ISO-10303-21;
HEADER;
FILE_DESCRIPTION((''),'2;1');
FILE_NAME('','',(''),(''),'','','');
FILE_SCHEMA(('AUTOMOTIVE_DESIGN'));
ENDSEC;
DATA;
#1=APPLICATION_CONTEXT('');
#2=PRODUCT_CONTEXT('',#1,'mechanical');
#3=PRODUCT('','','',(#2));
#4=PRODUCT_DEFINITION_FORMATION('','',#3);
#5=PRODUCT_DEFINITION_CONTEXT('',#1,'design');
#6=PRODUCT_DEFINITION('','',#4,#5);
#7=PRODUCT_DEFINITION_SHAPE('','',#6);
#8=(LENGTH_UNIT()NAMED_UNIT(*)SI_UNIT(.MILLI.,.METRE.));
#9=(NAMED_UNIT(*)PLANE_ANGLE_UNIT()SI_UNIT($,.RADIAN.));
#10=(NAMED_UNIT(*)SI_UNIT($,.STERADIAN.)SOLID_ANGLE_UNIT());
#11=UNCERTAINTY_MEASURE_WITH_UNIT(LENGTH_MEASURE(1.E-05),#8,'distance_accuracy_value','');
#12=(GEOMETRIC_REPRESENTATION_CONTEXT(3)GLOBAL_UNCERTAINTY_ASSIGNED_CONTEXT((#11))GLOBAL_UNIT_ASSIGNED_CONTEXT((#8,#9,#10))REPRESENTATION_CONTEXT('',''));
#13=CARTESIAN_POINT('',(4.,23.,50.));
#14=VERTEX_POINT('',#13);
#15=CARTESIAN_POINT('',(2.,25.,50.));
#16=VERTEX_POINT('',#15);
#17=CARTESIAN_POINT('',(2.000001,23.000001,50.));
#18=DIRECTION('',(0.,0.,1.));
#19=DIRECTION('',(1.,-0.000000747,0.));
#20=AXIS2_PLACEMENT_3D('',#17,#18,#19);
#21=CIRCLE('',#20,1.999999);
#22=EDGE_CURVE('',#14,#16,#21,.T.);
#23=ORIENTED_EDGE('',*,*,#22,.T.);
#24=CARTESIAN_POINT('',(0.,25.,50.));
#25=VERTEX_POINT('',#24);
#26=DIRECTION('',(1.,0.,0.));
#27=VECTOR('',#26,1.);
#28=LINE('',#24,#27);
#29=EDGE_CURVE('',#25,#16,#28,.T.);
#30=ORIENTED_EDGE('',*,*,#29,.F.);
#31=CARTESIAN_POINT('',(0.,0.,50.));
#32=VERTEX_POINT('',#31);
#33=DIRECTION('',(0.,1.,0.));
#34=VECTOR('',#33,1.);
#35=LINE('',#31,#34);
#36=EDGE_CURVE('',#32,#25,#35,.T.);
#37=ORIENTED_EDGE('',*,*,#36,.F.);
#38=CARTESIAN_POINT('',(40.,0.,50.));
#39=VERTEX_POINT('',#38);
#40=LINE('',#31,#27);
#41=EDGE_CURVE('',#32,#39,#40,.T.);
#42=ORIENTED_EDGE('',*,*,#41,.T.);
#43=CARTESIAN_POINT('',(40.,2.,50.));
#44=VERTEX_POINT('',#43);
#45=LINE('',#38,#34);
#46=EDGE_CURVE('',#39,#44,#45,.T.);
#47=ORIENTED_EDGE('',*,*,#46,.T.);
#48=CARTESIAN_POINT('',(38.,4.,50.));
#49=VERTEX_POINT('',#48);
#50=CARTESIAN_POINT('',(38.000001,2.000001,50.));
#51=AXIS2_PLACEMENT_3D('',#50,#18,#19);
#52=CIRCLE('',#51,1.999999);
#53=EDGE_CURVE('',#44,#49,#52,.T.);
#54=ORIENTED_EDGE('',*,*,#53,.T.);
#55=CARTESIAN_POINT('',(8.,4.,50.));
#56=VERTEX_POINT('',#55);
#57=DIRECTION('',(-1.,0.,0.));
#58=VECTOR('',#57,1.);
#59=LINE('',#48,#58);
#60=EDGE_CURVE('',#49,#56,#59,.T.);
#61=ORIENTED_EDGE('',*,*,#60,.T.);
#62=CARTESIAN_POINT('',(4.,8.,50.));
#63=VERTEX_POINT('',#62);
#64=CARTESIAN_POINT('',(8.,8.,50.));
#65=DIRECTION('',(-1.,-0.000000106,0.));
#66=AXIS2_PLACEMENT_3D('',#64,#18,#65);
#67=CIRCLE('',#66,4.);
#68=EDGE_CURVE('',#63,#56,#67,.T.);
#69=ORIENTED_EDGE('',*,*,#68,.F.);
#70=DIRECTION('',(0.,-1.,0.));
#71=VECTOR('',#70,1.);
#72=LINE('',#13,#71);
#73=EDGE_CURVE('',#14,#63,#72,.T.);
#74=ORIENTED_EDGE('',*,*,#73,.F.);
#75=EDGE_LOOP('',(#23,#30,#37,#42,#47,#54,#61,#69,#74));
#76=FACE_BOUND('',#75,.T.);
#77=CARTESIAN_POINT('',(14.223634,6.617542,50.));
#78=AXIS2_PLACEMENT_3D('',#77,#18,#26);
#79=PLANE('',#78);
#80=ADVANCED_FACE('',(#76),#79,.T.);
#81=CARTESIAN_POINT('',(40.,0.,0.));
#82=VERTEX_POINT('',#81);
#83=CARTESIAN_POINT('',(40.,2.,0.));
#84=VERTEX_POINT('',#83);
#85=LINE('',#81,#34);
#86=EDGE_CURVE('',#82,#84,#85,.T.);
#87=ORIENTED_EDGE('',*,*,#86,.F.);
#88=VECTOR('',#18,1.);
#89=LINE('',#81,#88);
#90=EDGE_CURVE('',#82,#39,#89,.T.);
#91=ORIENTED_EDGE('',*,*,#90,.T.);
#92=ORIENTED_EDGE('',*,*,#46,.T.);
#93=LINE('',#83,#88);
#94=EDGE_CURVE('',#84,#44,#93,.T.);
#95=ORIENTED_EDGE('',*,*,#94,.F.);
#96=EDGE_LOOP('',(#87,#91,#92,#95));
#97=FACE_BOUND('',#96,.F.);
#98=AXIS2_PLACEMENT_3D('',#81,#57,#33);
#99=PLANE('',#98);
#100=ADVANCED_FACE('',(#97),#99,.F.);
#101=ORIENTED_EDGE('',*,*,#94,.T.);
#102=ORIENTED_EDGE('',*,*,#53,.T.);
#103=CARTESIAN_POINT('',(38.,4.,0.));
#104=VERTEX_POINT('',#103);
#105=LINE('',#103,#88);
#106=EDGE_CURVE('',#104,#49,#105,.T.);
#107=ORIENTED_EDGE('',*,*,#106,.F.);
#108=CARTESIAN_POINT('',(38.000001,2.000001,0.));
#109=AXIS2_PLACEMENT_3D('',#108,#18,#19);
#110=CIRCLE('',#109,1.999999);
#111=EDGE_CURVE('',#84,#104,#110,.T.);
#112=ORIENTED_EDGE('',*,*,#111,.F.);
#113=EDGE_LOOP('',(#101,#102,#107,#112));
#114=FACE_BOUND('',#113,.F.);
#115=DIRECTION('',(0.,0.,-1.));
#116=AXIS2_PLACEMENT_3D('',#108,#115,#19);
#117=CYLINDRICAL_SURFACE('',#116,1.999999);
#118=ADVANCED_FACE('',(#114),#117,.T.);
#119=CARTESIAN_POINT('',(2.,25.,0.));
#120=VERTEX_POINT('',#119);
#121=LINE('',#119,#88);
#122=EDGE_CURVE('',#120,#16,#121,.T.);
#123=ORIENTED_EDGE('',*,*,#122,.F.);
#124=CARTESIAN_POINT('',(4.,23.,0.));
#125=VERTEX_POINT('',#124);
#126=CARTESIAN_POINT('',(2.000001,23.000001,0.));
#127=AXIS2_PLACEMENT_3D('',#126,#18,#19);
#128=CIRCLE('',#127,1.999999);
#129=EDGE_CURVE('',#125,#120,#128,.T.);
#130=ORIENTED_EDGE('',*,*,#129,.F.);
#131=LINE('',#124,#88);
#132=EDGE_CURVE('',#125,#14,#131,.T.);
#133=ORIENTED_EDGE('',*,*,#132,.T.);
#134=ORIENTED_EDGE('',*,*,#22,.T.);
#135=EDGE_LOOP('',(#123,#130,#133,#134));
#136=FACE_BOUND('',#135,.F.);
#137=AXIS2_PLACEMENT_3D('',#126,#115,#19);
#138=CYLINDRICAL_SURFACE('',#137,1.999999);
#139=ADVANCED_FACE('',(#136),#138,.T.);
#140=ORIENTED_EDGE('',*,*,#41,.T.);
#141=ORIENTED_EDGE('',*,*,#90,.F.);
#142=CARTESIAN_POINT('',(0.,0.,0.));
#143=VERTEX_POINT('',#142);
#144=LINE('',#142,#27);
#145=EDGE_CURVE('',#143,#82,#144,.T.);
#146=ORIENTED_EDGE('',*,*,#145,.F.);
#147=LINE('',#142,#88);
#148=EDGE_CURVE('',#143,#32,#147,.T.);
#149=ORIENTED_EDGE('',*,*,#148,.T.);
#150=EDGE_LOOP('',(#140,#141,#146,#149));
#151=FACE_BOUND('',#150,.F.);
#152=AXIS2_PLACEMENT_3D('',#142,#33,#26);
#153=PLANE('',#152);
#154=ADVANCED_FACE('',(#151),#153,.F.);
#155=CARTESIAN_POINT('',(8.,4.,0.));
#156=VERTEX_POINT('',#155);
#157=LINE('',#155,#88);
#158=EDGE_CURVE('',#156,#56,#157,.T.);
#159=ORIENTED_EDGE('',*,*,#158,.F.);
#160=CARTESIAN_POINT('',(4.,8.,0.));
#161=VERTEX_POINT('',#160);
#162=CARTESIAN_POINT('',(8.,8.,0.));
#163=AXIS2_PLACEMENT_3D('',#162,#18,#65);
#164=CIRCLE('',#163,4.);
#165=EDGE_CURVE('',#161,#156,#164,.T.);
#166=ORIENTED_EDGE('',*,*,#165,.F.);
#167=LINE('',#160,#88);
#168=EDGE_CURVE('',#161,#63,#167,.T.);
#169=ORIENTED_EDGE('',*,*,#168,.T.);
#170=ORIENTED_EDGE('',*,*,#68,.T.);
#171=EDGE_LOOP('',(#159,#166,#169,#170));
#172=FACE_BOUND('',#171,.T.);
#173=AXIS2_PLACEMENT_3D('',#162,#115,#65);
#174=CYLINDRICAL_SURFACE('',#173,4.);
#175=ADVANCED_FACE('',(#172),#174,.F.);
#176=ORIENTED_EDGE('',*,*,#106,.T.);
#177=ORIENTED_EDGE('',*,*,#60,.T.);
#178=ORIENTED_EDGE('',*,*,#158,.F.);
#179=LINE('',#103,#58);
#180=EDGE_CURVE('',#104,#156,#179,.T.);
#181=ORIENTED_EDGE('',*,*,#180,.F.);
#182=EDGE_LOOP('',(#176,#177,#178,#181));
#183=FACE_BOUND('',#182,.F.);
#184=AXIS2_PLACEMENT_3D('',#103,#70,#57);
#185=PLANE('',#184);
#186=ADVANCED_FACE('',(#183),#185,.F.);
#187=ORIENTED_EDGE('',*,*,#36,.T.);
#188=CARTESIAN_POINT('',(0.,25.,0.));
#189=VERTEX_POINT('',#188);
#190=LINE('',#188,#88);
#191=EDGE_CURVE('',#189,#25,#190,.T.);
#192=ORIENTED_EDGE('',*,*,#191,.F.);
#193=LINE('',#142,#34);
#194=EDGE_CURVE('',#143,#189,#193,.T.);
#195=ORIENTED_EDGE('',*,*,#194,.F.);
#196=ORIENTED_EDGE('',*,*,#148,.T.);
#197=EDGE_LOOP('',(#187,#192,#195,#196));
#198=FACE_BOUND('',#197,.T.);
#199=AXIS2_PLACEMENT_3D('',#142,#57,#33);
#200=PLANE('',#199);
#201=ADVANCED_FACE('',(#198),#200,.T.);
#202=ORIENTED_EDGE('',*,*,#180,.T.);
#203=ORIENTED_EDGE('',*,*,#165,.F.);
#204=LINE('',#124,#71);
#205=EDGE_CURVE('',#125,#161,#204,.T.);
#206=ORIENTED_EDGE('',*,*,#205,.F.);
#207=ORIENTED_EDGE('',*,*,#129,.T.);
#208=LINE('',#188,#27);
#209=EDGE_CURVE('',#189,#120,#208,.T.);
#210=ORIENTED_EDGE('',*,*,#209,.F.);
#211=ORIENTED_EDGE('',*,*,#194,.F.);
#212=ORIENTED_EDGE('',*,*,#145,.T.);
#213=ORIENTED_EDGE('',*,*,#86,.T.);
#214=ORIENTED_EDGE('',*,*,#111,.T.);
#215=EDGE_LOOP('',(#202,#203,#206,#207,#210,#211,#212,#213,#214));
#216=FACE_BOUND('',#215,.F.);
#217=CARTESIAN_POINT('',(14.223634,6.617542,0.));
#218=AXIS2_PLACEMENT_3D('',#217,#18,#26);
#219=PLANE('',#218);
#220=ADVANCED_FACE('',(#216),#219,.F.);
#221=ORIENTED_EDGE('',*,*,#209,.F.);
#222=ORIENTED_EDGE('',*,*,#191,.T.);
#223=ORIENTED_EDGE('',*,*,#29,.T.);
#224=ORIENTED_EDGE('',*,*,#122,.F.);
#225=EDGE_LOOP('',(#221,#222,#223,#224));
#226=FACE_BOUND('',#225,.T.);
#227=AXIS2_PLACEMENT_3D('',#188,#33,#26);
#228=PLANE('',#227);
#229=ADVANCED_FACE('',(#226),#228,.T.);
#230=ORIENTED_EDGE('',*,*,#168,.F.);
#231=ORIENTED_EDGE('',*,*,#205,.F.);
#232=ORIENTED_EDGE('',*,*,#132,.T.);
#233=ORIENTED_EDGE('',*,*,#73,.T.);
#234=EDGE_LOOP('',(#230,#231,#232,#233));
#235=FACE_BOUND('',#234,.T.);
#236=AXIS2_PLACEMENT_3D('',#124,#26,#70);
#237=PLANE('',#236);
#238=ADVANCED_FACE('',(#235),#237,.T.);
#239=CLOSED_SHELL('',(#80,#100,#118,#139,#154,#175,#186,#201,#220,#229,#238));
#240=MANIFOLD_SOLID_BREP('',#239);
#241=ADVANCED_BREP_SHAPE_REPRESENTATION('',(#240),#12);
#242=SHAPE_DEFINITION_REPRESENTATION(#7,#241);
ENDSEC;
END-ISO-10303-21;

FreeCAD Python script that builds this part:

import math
import FreeCAD as App
import Part
import Sketcher
Q = App.Units.Quantity

doc = App.newDocument("Part")
body = doc.addObject("PartDesign::Body", "Body")

sketch1 = body.newObject("Sketcher::SketchObject", "Sketch")
sketch1.AttachmentSupport = (doc.getObject("XY_Plane"), [""])
sketch1.MapMode = "FlatFace"
sketch1.addGeometry([
    Part.LineSegment(App.Vector(0, 0, 0), App.Vector(40, 0, 0)),
    Part.LineSegment(App.Vector(40, 0, 0), App.Vector(40, 2, 0)),
    Part.ArcOfCircle(Part.Circle(App.Vector(38, 2, 0), App.Vector(0, 0, 1), 2), math.radians(0), math.radians(90)),
    Part.LineSegment(App.Vector(38, 4, 0), App.Vector(8, 4, 0)),
    Part.ArcOfCircle(Part.Circle(App.Vector(8, 8, 0), App.Vector(0, 0, 1), 4), math.radians(-180), math.radians(-90)),
    Part.LineSegment(App.Vector(4, 8, 0), App.Vector(4, 23, 0)),
    Part.ArcOfCircle(Part.Circle(App.Vector(2, 23, 0), App.Vector(0, 0, 1), 2), math.radians(0), math.radians(90)),
    Part.LineSegment(App.Vector(2, 25, 0), App.Vector(0, 25, 0)),
    Part.LineSegment(App.Vector(0, 25, 0), App.Vector(0, 0, 0)),
], False)
sketch1.addConstraint([
    Sketcher.Constraint("Coincident", 0, 2, 1, 1),
    Sketcher.Constraint("Tangent", 1, 2, 2, 1),
    Sketcher.Constraint("Tangent", 2, 2, 3, 1),
    Sketcher.Constraint("Tangent", 3, 2, 4, 2),
    Sketcher.Constraint("Tangent", 4, 1, 5, 1),
    Sketcher.Constraint("Tangent", 5, 2, 6, 1),
    Sketcher.Constraint("Tangent", 6, 2, 7, 1),
    Sketcher.Constraint("Coincident", 7, 2, 8, 1),
    Sketcher.Constraint("Coincident", 8, 2, 0, 1),
    Sketcher.Constraint("Horizontal", 0),
    Sketcher.Constraint("Vertical", 1),
    Sketcher.Constraint("Horizontal", 3),
    Sketcher.Constraint("Vertical", 5),
    Sketcher.Constraint("Horizontal", 7),
    Sketcher.Constraint("Vertical", 8),
    Sketcher.Constraint("Coincident", 8, 2, -1, 1),
    Sketcher.Constraint("Equal", 2, 6),
    Sketcher.Constraint("Equal", 7, 1),
    Sketcher.Constraint("Radius", 2, Q("1.999999 mm")),
    Sketcher.Constraint("Radius", 4, Q("4 mm")),
    Sketcher.Constraint("DistanceX", 0, 1, 0, 2, Q("40 mm")),
    Sketcher.Constraint("DistanceX", 3, 2, 3, 1, Q("30 mm")),
    Sketcher.Constraint("DistanceY", 5, 1, 5, 2, Q("15 mm")),
])
pad1 = body.newObject("PartDesign::Pad", "Pad")
pad1.Profile = sketch1
pad1.Length = 50

doc.recompute()
